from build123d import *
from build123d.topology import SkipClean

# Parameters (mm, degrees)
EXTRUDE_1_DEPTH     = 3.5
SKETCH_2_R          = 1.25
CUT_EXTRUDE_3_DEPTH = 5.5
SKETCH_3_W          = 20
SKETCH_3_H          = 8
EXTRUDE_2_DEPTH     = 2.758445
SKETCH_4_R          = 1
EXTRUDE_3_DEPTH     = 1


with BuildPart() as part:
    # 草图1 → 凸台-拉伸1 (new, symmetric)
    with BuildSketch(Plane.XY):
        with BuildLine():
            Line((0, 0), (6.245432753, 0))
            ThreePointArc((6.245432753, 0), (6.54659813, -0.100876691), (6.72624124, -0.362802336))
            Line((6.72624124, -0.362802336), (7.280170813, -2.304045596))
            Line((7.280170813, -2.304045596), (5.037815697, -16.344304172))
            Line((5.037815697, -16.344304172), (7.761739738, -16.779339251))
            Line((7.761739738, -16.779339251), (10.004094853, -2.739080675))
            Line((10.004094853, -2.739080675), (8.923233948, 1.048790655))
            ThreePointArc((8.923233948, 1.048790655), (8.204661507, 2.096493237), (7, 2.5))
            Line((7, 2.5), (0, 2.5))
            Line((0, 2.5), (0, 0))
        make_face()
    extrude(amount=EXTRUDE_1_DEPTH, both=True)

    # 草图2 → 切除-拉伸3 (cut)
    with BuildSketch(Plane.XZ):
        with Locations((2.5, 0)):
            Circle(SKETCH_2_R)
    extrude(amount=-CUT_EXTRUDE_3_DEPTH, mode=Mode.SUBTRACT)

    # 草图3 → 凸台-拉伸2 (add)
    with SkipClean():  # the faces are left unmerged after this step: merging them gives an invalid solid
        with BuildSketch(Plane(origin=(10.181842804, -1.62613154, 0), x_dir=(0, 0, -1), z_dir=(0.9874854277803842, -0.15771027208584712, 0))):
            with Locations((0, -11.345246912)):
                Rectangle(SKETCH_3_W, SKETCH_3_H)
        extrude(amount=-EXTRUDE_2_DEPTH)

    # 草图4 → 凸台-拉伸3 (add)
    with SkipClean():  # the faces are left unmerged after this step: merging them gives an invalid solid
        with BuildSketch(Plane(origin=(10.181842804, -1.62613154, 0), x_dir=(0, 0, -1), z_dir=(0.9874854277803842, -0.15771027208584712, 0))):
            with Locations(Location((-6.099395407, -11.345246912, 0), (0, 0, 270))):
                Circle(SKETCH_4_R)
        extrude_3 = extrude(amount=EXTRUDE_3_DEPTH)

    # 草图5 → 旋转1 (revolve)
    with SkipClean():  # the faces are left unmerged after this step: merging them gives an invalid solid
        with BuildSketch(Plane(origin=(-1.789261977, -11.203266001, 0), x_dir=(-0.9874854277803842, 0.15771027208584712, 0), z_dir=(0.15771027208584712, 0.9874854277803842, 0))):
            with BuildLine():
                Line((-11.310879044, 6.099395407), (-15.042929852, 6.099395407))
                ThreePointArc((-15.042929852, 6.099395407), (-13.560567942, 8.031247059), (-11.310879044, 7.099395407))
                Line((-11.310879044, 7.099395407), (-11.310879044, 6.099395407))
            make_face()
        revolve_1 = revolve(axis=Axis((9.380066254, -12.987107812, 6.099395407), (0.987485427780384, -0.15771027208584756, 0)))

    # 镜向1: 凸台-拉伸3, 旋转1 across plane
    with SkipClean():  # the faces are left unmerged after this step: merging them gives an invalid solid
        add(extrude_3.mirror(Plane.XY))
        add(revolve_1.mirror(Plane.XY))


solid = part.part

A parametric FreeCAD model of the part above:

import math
import FreeCAD as App
import Part
import Sketcher


def add_polygon(sketch, points):
    """Adds a closed chain of lines whose ends are joined by coincident constraints."""
    first, n = sketch.GeometryCount, len(points)
    for a, b in zip(points, points[1:] + points[:1]):
        sketch.addGeometry(Part.LineSegment(App.Vector(*a, 0), App.Vector(*b, 0)), False)
    for i in range(n):
        sketch.addConstraint(Sketcher.Constraint("Coincident", first + i, 2, first + (i + 1) % n, 1))

doc = App.newDocument("Part")
body = doc.addObject("PartDesign::Body", "Body")

sketch1 = body.newObject("Sketcher::SketchObject", "Sketch")
sketch1.AttachmentSupport = (doc.getObject("XY_Plane"), [""])
sketch1.MapMode = "FlatFace"
sketch1.addGeometry([
    Part.LineSegment(App.Vector(0, 0, 0), App.Vector(6.2, 0, 0)),
    Part.ArcOfCircle(Part.Circle(App.Vector(6.2, -0.5, 0), App.Vector(0, 0, 1), 0.5), math.radians(16), math.radians(90)),
    Part.LineSegment(App.Vector(6.7, -0.4, 0), App.Vector(7.3, -2.3, 0)),
    Part.LineSegment(App.Vector(7.3, -2.3, 0), App.Vector(5, -16.3, 0)),
    Part.LineSegment(App.Vector(5, -16.3, 0), App.Vector(7.8, -16.8, 0)),
    Part.LineSegment(App.Vector(7.8, -16.8, 0), App.Vector(10, -2.7, 0)),
    Part.LineSegment(App.Vector(10, -2.7, 0), App.Vector(8.9, 1, 0)),
    Part.ArcOfCircle(Part.Circle(App.Vector(7, 0.5, 0), App.Vector(0, 0, 1), 2), math.radians(16), math.radians(90)),
    Part.LineSegment(App.Vector(7, 2.5, 0), App.Vector(0, 2.5, 0)),
    Part.LineSegment(App.Vector(0, 2.5, 0), App.Vector(0, 0, 0)),
], False)
sketch1.addConstraint([
    Sketcher.Constraint("Tangent", 0, 2, 1, 2),
    Sketcher.Constraint("Tangent", 1, 1, 2, 1),
    Sketcher.Constraint("Coincident", 2, 2, 3, 1),
    Sketcher.Constraint("Coincident", 3, 2, 4, 1),
    Sketcher.Constraint("Coincident", 4, 2, 5, 1),
    Sketcher.Constraint("Coincident", 5, 2, 6, 1),
    Sketcher.Constraint("Tangent", 6, 2, 7, 1),
    Sketcher.Constraint("Tangent", 7, 2, 8, 1),
    Sketcher.Constraint("Coincident", 8, 2, 9, 1),
    Sketcher.Constraint("Coincident", 9, 2, 0, 1),
    Sketcher.Constraint("Horizontal", 0),
    Sketcher.Constraint("Horizontal", 8),
    Sketcher.Constraint("Vertical", 9),
    Sketcher.Constraint("Coincident", 9, 2, -1, 1),
    Sketcher.Constraint("Perpendicular", 3, 4),
    Sketcher.Constraint("Perpendicular", 4, 5),
    Sketcher.Constraint("Parallel", 2, 6),
    Sketcher.Constraint("Equal", 3, 5),
    Sketcher.Constraint("Radius", 7, 2.0),
    Sketcher.Constraint("Radius", 1, 0.5),
    Sketcher.Constraint("DistanceX", 8, 2, 8, 1, 7.0),
    Sketcher.Constraint("DistanceY", 9, 2, 9, 1, 2.5),
    Sketcher.Constraint("DistanceY", 3, 2, 1, 1, 15.981502),
    Sketcher.Constraint("DistanceX", 1, 1, 4, 2, 1.035498),
    Sketcher.Constraint("DistanceX", 0, 2, 6, 2, 2.677801),
    Sketcher.Constraint("Distance", 2, 2.018728),
    Sketcher.Constraint("DistanceX", 0, 1, 0, 2, 6.245433),
])
pad1 = body.newObject("PartDesign::Pad", "Pad")
pad1.Profile = sketch1
pad1.Length = 7
pad1.Midplane = True

sketch2 = body.newObject("Sketcher::SketchObject", "Sketch001")
sketch2.AttachmentSupport = (doc.getObject("XZ_Plane"), [""])
sketch2.MapMode = "FlatFace"
sketch2.addGeometry(Part.Circle(App.Vector(2.5, 0, 0), App.Vector(0, 0, 1), 1.2), False)
sketch2.addConstraint([
    Sketcher.Constraint("PointOnObject", 0, 3, -1),
    Sketcher.Constraint("Diameter", 0, 2.5),
    Sketcher.Constraint("DistanceX", -1, 1, 0, 3, 2.5),
])
pocket1 = body.newObject("PartDesign::Pocket", "Pocket")
pocket1.Profile = sketch2
pocket1.Length = 5.5

sketch3 = body.newObject("Sketcher::SketchObject", "Sketch002")
sketch3.Placement = App.Placement(App.Vector(10.181843, -1.626132, 0), App.Rotation(App.Vector(0, 0, -1), App.Vector(0.157710272, 0.987485428, 0), App.Vector(0.987485428, -0.157710272, 0), "ZXY"))
add_polygon(sketch3, [(-10, -7), (-10, -15), (10, -15), (10, -7)])
sketch3.addConstraint([
    Sketcher.Constraint("Vertical", 0),
    Sketcher.Constraint("Horizontal", 1),
    Sketcher.Constraint("Vertical", 2),
    Sketcher.Constraint("Horizontal", 3),
    Sketcher.Constraint("DistanceX", 1, 1, 1, 2, 20.0),
    Sketcher.Constraint("DistanceY", 0, 2, 0, 1, 8.0),
    Sketcher.Constraint("DistanceX", 0, 2, -1, 1, 10.0),
    Sketcher.Constraint("DistanceY", 0, 2, -1, 1, 15.345247),
])
pad2 = body.newObject("PartDesign::Pad", "Pad001")
pad2.Profile = sketch3
pad2.Length = 2.758445
pad2.Reversed = True

sketch4 = body.newObject("Sketcher::SketchObject", "Sketch003")
sketch4.Placement = App.Placement(App.Vector(10.181843, -1.626132, 0), App.Rotation(App.Vector(0, 0, -1), App.Vector(0.157710272, 0.987485428, 0), App.Vector(0.987485428, -0.157710272, 0), "ZXY"))
sketch4.addGeometry(Part.Circle(App.Vector(-6.1, -11.3, 0), App.Vector(0, 0, 1), 1), False)
sketch4.addConstraint([
    Sketcher.Constraint("Diameter", 0, 2.0),
    Sketcher.Constraint("DistanceX", 0, 3, -1, 1, 6.099395),
    Sketcher.Constraint("DistanceY", 0, 3, -1, 1, 11.345247),
])
pad3 = body.newObject("PartDesign::Pad", "Pad002")
pad3.Profile = sketch4
pad3.Length = 1

sketch5 = body.newObject("Sketcher::SketchObject", "Sketch004")
sketch5.Placement = App.Placement(App.Vector(-1.789262, -11.203266, 0), App.Rotation(App.Vector(-0.987485428, 0.157710272, 0), App.Vector(0, 0, 1), App.Vector(0.157710272, 0.987485428, 0), "ZXY"))
sketch5.addGeometry([
    Part.LineSegment(App.Vector(-15, 6.1, 0), App.Vector(-11.3, 6.1, 0)),
    Part.LineSegment(App.Vector(-11.3, 6.1, 0), App.Vector(-11.3, 7.1, 0)),
    Part.ArcOfCircle(Part.Circle(App.Vector(-13, 6.1, 0), App.Vector(0, 0, 1), 2), math.radians(30), math.radians(180)),
], False)
sketch5.addGeometry(Part.LineSegment(App.Vector(-11.3, 6.1, 0), App.Vector(-15, 6.1, 0)), True)
sketch5.addConstraint([
    Sketcher.Constraint("Coincident", 0, 2, 1, 1),
    Sketcher.Constraint("Coincident", 1, 2, 2, 1),
    Sketcher.Constraint("Coincident", 2, 2, 0, 1),
    Sketcher.Constraint("Horizontal", 0),
    Sketcher.Constraint("Vertical", 1),
    Sketcher.Constraint("Horizontal", 3),
    Sketcher.Constraint("Coincident", 3, 1, 0, 2),
    Sketcher.Constraint("Horizontal", 2, 3, 0, 2),
    Sketcher.Constraint("Equal", 0, 3),
    Sketcher.Constraint("Radius", 2, 2.0),
    Sketcher.Constraint("DistanceY", 1, 1, 1, 2, 1.0),
    Sketcher.Constraint("DistanceX", 2, 3, -1, 1, 13.04293),
    Sketcher.Constraint("DistanceY", -1, 1, 2, 3, 6.099395),
])
revolution = body.newObject("PartDesign::Revolution", "Revolution")
revolution.Profile = sketch5
revolution.ReferenceAxis = (sketch5, ["Axis0"])
revolution.Angle = 360
doc.recompute()

mirrored = body.newObject("PartDesign::Mirrored", "Mirrored")
mirrored.Originals = [pad3, revolution]
mirrored.MirrorPlane = (doc.getObject("XY_Plane"), [""])
body.Tip = mirrored

doc.recompute()
